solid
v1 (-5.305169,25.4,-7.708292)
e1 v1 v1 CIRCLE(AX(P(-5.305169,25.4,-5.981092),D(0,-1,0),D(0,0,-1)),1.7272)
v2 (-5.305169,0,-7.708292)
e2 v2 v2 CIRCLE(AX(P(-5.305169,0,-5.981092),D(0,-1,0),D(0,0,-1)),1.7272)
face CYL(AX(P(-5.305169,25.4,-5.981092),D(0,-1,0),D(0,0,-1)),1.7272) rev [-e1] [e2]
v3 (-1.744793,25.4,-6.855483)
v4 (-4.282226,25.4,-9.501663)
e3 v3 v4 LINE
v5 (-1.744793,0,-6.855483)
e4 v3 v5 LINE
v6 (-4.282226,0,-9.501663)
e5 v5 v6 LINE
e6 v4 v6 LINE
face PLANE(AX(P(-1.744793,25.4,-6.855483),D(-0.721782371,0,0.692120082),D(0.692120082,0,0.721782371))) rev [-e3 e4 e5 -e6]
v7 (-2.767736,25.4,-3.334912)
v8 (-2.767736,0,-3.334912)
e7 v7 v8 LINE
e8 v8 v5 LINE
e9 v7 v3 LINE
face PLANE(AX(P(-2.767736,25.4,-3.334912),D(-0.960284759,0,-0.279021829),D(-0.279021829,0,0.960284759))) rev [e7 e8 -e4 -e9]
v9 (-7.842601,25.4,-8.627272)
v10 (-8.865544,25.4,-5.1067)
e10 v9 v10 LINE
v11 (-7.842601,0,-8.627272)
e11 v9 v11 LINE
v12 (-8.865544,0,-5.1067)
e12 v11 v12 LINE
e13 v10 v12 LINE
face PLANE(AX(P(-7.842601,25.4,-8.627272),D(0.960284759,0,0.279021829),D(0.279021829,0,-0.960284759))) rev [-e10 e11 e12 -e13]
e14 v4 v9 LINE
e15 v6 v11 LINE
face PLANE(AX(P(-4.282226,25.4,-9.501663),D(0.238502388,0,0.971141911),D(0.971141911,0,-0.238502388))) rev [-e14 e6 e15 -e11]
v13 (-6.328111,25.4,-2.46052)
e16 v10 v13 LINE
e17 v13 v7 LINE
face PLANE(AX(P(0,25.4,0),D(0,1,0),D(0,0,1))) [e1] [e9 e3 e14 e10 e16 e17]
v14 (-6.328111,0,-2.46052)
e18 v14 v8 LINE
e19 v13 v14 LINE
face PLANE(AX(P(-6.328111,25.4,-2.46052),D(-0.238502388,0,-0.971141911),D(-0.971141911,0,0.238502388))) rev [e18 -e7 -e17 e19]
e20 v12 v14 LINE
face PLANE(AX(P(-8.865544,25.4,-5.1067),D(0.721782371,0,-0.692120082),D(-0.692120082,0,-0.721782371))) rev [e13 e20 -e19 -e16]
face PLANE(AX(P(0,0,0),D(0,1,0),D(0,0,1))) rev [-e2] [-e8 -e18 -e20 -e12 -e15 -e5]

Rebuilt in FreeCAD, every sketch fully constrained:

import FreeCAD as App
import Part
import Sketcher
Q = App.Units.Quantity


def add_polygon(sketch, points):
    """Adds a closed chain of lines whose ends are joined by coincident constraints."""
    first, n = sketch.GeometryCount, len(points)
    for a, b in zip(points, points[1:] + points[:1]):
        sketch.addGeometry(Part.LineSegment(App.Vector(*a, 0), App.Vector(*b, 0)), False)
    for i in range(n):
        sketch.addConstraint(Sketcher.Constraint("Coincident", first + i, 2, first + (i + 1) % n, 1))

doc = App.newDocument("Part")
params = doc.addObject("Spreadsheet::Sheet", "Params")
for row, (alias, value) in enumerate([
    ("pad1_length", "1 in"),
    ("sketch2_diameter", "0.136 in"),
], start=1):
    params.set(f"A{row}", alias)
    params.set(f"B{row}", "=" + value)
    params.setAlias(f"B{row}", alias)

body = doc.addObject("PartDesign::Body", "Body")

sketch1 = body.newObject("Sketcher::SketchObject", "Sketch")
sketch1.AttachmentSupport = (doc.getObject("XZ_Plane"), [""])
sketch1.MapMode = "FlatFace"
add_polygon(sketch1, [(-2.8, -3.3), (-1.7, -6.9), (-4.3, -9.5), (-7.8, -8.6), (-8.9, -5.1), (-6.3, -2.5)])
sketch1.addConstraint([
    Sketcher.Constraint("Parallel", 0, 3),
    Sketcher.Constraint("Parallel", 1, 4),
    Sketcher.Constraint("Parallel", 2, 5),
    Sketcher.Constraint("Equal", 0, 1),
    Sketcher.Constraint("Equal", 1, 2),
    Sketcher.Constraint("Equal", 2, 3),
    Sketcher.Constraint("DistanceX", 2, 2, -1, 1, 7.842601),
    Sketcher.Constraint("DistanceY", 3, 2, -1, 1, 5.1067),
    Sketcher.Constraint("DistanceY", 2, 2, -1, 1, 8.627272),
    Sketcher.Constraint("DistanceX", 4, 2, -1, 1, 6.328111),
    Sketcher.Constraint("DistanceY", 4, 2, -1, 1, 2.46052),
    Sketcher.Constraint("DistanceY", 5, 2, -1, 1, 3.334912),
])
pad1 = body.newObject("PartDesign::Pad", "Pad")
pad1.Profile = sketch1
pad1.setExpression("Length", "Params.pad1_length")
pad1.Reversed = True

sketch2 = body.newObject("Sketcher::SketchObject", "Sketch001")
sketch2.AttachmentSupport = (doc.getObject("XZ_Plane"), [""])
sketch2.MapMode = "FlatFace"
sketch2.addGeometry(Part.Circle(App.Vector(-5.3, -6, 0), App.Vector(0, 0, 1), 1.7), False)
sketch2.addConstraint([
    Sketcher.Constraint("Diameter", 0, Q("0.136 in")),
    Sketcher.Constraint("DistanceX", 0, 3, -1, 1, 5.305169),
    Sketcher.Constraint("DistanceY", 0, 3, -1, 1, 5.981092),
])
sketch2.setExpression("Constraints[0]", "Params.sketch2_diameter")
pocket1 = body.newObject("PartDesign::Pocket", "Pocket")
pocket1.Profile = sketch2
pocket1.Type = "ThroughAll"

doc.recompute()
